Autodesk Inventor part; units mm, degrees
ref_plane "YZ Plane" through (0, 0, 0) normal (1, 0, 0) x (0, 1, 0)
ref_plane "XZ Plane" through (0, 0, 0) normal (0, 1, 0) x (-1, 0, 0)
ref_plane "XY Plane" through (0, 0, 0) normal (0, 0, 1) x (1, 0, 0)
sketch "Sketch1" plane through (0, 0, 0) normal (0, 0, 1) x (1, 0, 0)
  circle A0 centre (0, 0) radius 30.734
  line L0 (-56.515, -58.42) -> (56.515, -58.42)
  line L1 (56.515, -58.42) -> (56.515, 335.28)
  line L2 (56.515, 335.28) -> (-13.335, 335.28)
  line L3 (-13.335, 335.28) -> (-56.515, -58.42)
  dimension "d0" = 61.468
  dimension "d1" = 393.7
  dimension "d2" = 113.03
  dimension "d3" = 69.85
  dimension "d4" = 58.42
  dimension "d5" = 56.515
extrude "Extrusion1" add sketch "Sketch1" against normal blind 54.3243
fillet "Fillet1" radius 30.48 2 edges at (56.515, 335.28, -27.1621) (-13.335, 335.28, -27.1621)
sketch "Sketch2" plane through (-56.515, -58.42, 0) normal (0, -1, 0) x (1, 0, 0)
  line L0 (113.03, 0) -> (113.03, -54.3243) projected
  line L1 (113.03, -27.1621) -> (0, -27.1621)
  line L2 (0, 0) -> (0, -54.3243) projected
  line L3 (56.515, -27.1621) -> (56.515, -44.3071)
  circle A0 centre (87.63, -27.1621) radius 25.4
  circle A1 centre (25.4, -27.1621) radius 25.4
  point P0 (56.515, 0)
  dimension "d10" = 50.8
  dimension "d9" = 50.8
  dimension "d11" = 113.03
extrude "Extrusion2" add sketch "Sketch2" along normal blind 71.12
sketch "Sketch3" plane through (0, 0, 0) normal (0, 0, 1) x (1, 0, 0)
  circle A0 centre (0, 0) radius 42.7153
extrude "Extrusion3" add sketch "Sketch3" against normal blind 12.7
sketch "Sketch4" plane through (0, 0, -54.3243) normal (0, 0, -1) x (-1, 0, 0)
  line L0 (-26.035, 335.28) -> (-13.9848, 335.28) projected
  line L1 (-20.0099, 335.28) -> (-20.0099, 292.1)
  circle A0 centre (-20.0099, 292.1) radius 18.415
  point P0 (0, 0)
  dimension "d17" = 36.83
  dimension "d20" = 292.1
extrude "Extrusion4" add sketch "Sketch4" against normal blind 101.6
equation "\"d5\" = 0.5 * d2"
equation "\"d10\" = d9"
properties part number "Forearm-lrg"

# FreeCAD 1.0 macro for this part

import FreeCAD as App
import Part
import Sketcher
Q = App.Units.Quantity


def edges_at(feature, points):
    """Names of the edges that pass closest to the given points."""
    edges = feature.Shape.Edges
    near = lambda p: min(range(len(edges)), key=lambda i: edges[i].distToShape(Part.Vertex(*p))[0])
    return sorted({f"Edge{near(p) + 1}" for p in points})

doc = App.newDocument("Part")
body = doc.addObject("PartDesign::Body", "Body")

# Sketch on XY plane
sketch1 = body.newObject("Sketcher::SketchObject", "Sketch")
sketch1.AttachmentSupport = (doc.getObject("XY_Plane"), [""])
sketch1.MapMode = "FlatFace"
sketch1.addGeometry(Part.LineSegment(App.Vector(-13, 335, 0), App.Vector(-57, -58, 0)), False)
sketch1.addGeometry(Part.LineSegment(App.Vector(-57, -58, 0), App.Vector(57, -58, 0)), False)
sketch1.addGeometry(Part.LineSegment(App.Vector(57, -58, 0), App.Vector(57, 335, 0)), False)
sketch1.addGeometry(Part.LineSegment(App.Vector(57, 335, 0), App.Vector(-13, 335, 0)), False)
sketch1.addGeometry(Part.Circle(App.Vector(0, 0, 0), App.Vector(0, 0, 1), 31), False)
sketch1.addConstraint(Sketcher.Constraint("Coincident", 0, 2, 1, 1))
sketch1.addConstraint(Sketcher.Constraint("Coincident", 1, 2, 2, 1))
sketch1.addConstraint(Sketcher.Constraint("Coincident", 2, 2, 3, 1))
sketch1.addConstraint(Sketcher.Constraint("Coincident", 3, 2, 0, 1))
sketch1.addConstraint(Sketcher.Constraint("Horizontal", 1))
sketch1.addConstraint(Sketcher.Constraint("Vertical", 2))
sketch1.addConstraint(Sketcher.Constraint("Horizontal", 3))
sketch1.addConstraint(Sketcher.Constraint("Coincident", 4, 3, -1, 1))
sketch1.addConstraint(Sketcher.Constraint("Diameter", 4, Q("2.42 in")))
sketch1.addConstraint(Sketcher.Constraint("DistanceY", 2, 1, 2, 2, Q("15.5 in")))
sketch1.addConstraint(Sketcher.Constraint("DistanceX", 1, 1, 1, 2, Q("4.45 in")))
sketch1.addConstraint(Sketcher.Constraint("DistanceX", 3, 2, 3, 1, Q("2.75 in")))
sketch1.addConstraint(Sketcher.Constraint("DistanceY", 0, 2, -1, 1, Q("2.3 in")))
sketch1.addConstraint(Sketcher.Constraint("DistanceX", 0, 2, -1, 1, Q("2.225 in")))
pad1 = body.newObject("PartDesign::Pad", "Pad")
pad1.Profile = sketch1
pad1.Length = 54.3243
pad1.Reversed = True
doc.recompute()

fillet = body.newObject("PartDesign::Fillet", "Fillet")
fillet.Base = (pad1, edges_at(pad1, [(56.515, 335.28, -27.162), (-13.335, 335.28, -27.162)]))
fillet.Radius = Q("1.2 in")

# Sketch on XZ plane
sketch2 = body.newObject("Sketcher::SketchObject", "Sketch001")
sketch2.AttachmentSupport = (doc.getObject("XZ_Plane"), [""])
sketch2.MapMode = "FlatFace"
sketch2.AttachmentOffset = App.Placement(App.Vector(0, 0, 2.3 * 25.4), App.Rotation())
sketch2.addGeometry(Part.Circle(App.Vector(-31, -27, 0), App.Vector(0, 0, 1), 25), False)
sketch2.addGeometry(Part.Circle(App.Vector(31, -27, 0), App.Vector(0, 0, 1), 25), False)
sketch2.addConstraint(Sketcher.Constraint("Equal", 0, 1))
sketch2.addConstraint(Sketcher.Constraint("Symmetric", 0, 3, 1, 3, -2))
sketch2.addConstraint(Sketcher.Constraint("Diameter", 0, Q("2 in")))
sketch2.addConstraint(Sketcher.Constraint("DistanceX", 0, 3, 1, 3, Q("2.45 in")))
sketch2.addConstraint(Sketcher.Constraint("DistanceY", 0, 3, -1, 1, Q("27.162 mm")))
pad2 = body.newObject("PartDesign::Pad", "Pad001")
pad2.Profile = sketch2
pad2.Length = Q("2.8 in")

# Sketch on XY plane
sketch3 = body.newObject("Sketcher::SketchObject", "Sketch002")
sketch3.AttachmentSupport = (doc.getObject("XY_Plane"), [""])
sketch3.MapMode = "FlatFace"
sketch3.addGeometry(Part.Circle(App.Vector(0, 0, 0), App.Vector(0, 0, 1), 43), False)
sketch3.addConstraint(Sketcher.Constraint("Coincident", 0, 3, -1, 1))
sketch3.addConstraint(Sketcher.Constraint("Diameter", 0, Q("3.3634 in")))
pad3 = body.newObject("PartDesign::Pad", "Pad002")
pad3.Profile = sketch3
pad3.Length = Q("0.5 in")
pad3.Reversed = True

# Sketch on XY plane
sketch4 = body.newObject("Sketcher::SketchObject", "Sketch003")
sketch4.AttachmentSupport = (doc.getObject("XY_Plane"), [""])
sketch4.MapMode = "FlatFace"
sketch4.AttachmentOffset = App.Placement(App.Vector(0, 0, -54.3243), App.Rotation())
sketch4.addGeometry(Part.Circle(App.Vector(20, 292, 0), App.Vector(0, 0, 1), 18), False)
sketch4.addConstraint(Sketcher.Constraint("Diameter", 0, Q("1.45 in")))
sketch4.addConstraint(Sketcher.Constraint("DistanceY", -1, 1, 0, 3, Q("11.5 in")))
sketch4.addConstraint(Sketcher.Constraint("DistanceX", -1, 1, 0, 3, Q("0.7878 in")))
pad4 = body.newObject("PartDesign::Pad", "Pad003")
pad4.Profile = sketch4
pad4.Length = Q("4 in")

doc.recompute()
